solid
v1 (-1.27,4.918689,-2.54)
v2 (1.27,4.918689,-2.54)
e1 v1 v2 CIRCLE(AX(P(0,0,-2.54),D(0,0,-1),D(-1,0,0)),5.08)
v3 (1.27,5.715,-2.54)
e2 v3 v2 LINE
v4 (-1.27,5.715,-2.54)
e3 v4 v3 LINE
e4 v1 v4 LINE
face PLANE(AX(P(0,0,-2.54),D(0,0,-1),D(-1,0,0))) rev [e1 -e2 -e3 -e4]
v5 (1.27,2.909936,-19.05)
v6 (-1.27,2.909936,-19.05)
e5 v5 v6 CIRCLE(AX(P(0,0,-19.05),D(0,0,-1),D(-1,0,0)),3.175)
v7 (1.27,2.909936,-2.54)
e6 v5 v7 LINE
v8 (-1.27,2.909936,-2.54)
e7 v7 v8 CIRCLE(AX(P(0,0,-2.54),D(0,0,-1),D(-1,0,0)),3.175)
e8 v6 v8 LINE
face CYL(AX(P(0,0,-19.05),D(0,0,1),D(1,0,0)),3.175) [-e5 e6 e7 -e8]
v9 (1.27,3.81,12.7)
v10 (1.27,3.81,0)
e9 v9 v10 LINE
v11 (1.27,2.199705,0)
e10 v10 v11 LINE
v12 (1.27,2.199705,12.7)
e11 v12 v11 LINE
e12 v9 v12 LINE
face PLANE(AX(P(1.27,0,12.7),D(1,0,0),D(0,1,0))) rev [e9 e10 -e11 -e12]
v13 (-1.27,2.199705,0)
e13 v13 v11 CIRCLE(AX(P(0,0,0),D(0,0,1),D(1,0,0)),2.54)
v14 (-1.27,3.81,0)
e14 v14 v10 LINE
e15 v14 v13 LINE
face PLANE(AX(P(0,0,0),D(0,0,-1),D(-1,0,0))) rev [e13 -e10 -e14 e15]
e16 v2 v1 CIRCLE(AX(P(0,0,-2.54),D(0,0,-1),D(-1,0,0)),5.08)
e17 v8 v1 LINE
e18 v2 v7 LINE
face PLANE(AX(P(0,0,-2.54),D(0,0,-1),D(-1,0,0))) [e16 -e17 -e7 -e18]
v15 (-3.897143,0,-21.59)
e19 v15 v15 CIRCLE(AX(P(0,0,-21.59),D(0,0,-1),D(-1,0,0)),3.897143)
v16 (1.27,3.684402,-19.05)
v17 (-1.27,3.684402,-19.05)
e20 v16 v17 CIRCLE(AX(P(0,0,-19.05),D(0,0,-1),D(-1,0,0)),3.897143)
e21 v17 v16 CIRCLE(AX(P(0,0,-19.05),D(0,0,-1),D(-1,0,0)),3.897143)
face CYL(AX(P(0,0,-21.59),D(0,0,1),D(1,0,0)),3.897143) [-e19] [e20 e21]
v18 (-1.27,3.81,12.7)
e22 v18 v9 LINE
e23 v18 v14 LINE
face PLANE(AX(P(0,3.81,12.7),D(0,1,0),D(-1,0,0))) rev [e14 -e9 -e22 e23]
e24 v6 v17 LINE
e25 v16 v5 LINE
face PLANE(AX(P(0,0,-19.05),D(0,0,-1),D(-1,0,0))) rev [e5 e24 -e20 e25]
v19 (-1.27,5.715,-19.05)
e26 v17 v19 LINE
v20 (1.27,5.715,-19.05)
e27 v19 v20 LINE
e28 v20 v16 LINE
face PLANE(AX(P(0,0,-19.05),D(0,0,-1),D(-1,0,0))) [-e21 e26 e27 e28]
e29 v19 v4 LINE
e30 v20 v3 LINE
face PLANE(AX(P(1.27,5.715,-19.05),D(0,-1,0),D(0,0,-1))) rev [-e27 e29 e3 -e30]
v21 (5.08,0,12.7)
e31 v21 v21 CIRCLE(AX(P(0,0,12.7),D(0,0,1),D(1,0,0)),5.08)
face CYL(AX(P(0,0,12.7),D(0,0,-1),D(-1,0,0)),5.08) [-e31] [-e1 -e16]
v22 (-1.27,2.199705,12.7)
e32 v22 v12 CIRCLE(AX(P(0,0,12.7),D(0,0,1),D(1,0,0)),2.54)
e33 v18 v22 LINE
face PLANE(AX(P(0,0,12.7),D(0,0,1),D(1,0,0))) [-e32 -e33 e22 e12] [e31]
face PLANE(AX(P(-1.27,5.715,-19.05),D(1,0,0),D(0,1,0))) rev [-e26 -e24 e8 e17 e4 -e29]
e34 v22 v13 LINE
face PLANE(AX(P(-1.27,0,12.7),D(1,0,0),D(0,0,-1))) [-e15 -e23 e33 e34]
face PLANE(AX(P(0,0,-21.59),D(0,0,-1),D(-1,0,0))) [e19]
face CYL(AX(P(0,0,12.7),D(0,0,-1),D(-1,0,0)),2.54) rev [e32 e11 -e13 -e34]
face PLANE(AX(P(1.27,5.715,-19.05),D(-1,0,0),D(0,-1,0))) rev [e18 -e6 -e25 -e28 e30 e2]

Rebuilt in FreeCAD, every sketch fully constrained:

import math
import FreeCAD as App
import Part
import Sketcher
Q = App.Units.Quantity

doc = App.newDocument("Part")
body = doc.addObject("PartDesign::Body", "Body")

sketch1 = body.newObject("Sketcher::SketchObject", "Sketch")
sketch1.AttachmentSupport = (doc.getObject("XY_Plane"), [""])
sketch1.MapMode = "FlatFace"
sketch1.addGeometry(Part.Circle(App.Vector(0, 0, 0), App.Vector(0, 0, 1), 5.08), False)
sketch1.addGeometry(Part.ArcOfCircle(Part.Circle(App.Vector(0, 0, 0), App.Vector(0, 0, 1), 2.54), math.radians(120), math.radians(360)), False)
sketch1.addGeometry(Part.LineSegment(App.Vector(-1.27, 2.199705, 0), App.Vector(-1.27, 3.81, 0)), False)
sketch1.addGeometry(Part.LineSegment(App.Vector(-1.27, 3.81, 0), App.Vector(1.27, 3.81, 0)), False)
sketch1.addGeometry(Part.LineSegment(App.Vector(1.27, 3.81, 0), App.Vector(1.27, 2.199705, 0)), False)
sketch1.addGeometry(Part.ArcOfCircle(Part.Circle(App.Vector(0, 0, 0), App.Vector(0, 0, 1), 2.54), math.radians(0), math.radians(60)), False)
sketch1.addConstraint(Sketcher.Constraint("Coincident", 1, 1, 2, 1))
sketch1.addConstraint(Sketcher.Constraint("Coincident", 2, 2, 3, 1))
sketch1.addConstraint(Sketcher.Constraint("Coincident", 3, 2, 4, 1))
sketch1.addConstraint(Sketcher.Constraint("Coincident", 4, 2, 5, 2))
sketch1.addConstraint(Sketcher.Constraint("Tangent", 5, 1, 1, 2))
sketch1.addConstraint(Sketcher.Constraint("Vertical", 2))
sketch1.addConstraint(Sketcher.Constraint("Horizontal", 3))
sketch1.addConstraint(Sketcher.Constraint("Vertical", 4))
sketch1.addConstraint(Sketcher.Constraint("Coincident", 0, 3, -1, 1))
sketch1.addConstraint(Sketcher.Constraint("Coincident", 1, 3, -1, 1))
sketch1.addConstraint(Sketcher.Constraint("Equal", 1, 5))
sketch1.addConstraint(Sketcher.Constraint("PointOnObject", 5, 1, -1))
sketch1.addConstraint(Sketcher.Constraint("Horizontal", 1, 1, 4, 2))
sketch1.addConstraint(Sketcher.Constraint("Diameter", 0, Q("0.4 in")))
sketch1.addConstraint(Sketcher.Constraint("Radius", 1, Q("0.1 in")))
sketch1.addConstraint(Sketcher.Constraint("DistanceX", 3, 1, 3, 2, Q("0.1 in")))
sketch1.addConstraint(Sketcher.Constraint("DistanceY", -1, 1, 2, 2, Q("0.15 in")))
pad1 = body.newObject("PartDesign::Pad", "Pad")
pad1.Profile = sketch1
pad1.Length = Q("0.5 in")

sketch2 = body.newObject("Sketcher::SketchObject", "Sketch001")
sketch2.AttachmentSupport = (doc.getObject("XY_Plane"), [""])
sketch2.MapMode = "FlatFace"
sketch2.AttachmentOffset = App.Placement(App.Vector(0, 0, -0.1 * 25.4), App.Rotation())
sketch2.addGeometry(Part.Circle(App.Vector(0, 0, 0), App.Vector(0, 0, 1), 5.08), False)
sketch2.addConstraint(Sketcher.Constraint("Coincident", 0, 3, -1, 1))
sketch2.addConstraint(Sketcher.Constraint("Diameter", 0, Q("0.4 in")))
pad2 = body.newObject("PartDesign::Pad", "Pad001")
pad2.Profile = sketch2
pad2.Length = Q("0.1 in")

sketch3 = body.newObject("Sketcher::SketchObject", "Sketch002")
sketch3.AttachmentSupport = (doc.getObject("XY_Plane"), [""])
sketch3.MapMode = "FlatFace"
sketch3.AttachmentOffset = App.Placement(App.Vector(0, 0, -0.1 * 25.4), App.Rotation())
sketch3.addGeometry(Part.LineSegment(App.Vector(-1.27, 5.715, 0), App.Vector(1.27, 5.715, 0)), False)
sketch3.addGeometry(Part.LineSegment(App.Vector(1.27, 5.715, 0), App.Vector(1.27, 2.909936, 0)), False)
sketch3.addGeometry(Part.ArcOfCircle(Part.Circle(App.Vector(0, 0, 0), App.Vector(0, 0, 1), 3.175), math.radians(113.578178), math.radians(426.421822)), False)
sketch3.addGeometry(Part.LineSegment(App.Vector(-1.27, 2.909936, 0), App.Vector(-1.27, 5.715, 0)), False)
sketch3.addConstraint(Sketcher.Constraint("Coincident", 0, 2, 1, 1))
sketch3.addConstraint(Sketcher.Constraint("Coincident", 1, 2, 2, 2))
sketch3.addConstraint(Sketcher.Constraint("Coincident", 2, 1, 3, 1))
sketch3.addConstraint(Sketcher.Constraint("Coincident", 3, 2, 0, 1))
sketch3.addConstraint(Sketcher.Constraint("Horizontal", 0))
sketch3.addConstraint(Sketcher.Constraint("Vertical", 1))
sketch3.addConstraint(Sketcher.Constraint("Vertical", 3))
sketch3.addConstraint(Sketcher.Constraint("Coincident", 2, 3, -1, 1))
sketch3.addConstraint(Sketcher.Constraint("Horizontal", 1, 2, 2, 1))
sketch3.addConstraint(Sketcher.Constraint("DistanceX", 0, 1, 0, 2, Q("0.1 in")))
sketch3.addConstraint(Sketcher.Constraint("Radius", 2, Q("0.125 in")))
sketch3.addConstraint(Sketcher.Constraint("DistanceY", -1, 1, 0, 2, Q("0.225 in")))
pad3 = body.newObject("PartDesign::Pad", "Pad002")
pad3.Profile = sketch3
pad3.Length = Q("0.65 in")
pad3.Reversed = True

sketch4 = body.newObject("Sketcher::SketchObject", "Sketch003")
sketch4.AttachmentSupport = (doc.getObject("XY_Plane"), [""])
sketch4.MapMode = "FlatFace"
sketch4.AttachmentOffset = App.Placement(App.Vector(0, 0, -0.75 * 25.4), App.Rotation())
sketch4.addGeometry(Part.Circle(App.Vector(0, 0, 0), App.Vector(0, 0, 1), 3.897143), False)
sketch4.addConstraint(Sketcher.Constraint("Coincident", 0, 3, -1, 1))
sketch4.addConstraint(Sketcher.Constraint("Diameter", 0, Q("7.794285 mm")))
pad4 = body.newObject("PartDesign::Pad", "Pad003")
pad4.Profile = sketch4
pad4.Length = Q("0.1 in")
pad4.Reversed = True

doc.recompute()
